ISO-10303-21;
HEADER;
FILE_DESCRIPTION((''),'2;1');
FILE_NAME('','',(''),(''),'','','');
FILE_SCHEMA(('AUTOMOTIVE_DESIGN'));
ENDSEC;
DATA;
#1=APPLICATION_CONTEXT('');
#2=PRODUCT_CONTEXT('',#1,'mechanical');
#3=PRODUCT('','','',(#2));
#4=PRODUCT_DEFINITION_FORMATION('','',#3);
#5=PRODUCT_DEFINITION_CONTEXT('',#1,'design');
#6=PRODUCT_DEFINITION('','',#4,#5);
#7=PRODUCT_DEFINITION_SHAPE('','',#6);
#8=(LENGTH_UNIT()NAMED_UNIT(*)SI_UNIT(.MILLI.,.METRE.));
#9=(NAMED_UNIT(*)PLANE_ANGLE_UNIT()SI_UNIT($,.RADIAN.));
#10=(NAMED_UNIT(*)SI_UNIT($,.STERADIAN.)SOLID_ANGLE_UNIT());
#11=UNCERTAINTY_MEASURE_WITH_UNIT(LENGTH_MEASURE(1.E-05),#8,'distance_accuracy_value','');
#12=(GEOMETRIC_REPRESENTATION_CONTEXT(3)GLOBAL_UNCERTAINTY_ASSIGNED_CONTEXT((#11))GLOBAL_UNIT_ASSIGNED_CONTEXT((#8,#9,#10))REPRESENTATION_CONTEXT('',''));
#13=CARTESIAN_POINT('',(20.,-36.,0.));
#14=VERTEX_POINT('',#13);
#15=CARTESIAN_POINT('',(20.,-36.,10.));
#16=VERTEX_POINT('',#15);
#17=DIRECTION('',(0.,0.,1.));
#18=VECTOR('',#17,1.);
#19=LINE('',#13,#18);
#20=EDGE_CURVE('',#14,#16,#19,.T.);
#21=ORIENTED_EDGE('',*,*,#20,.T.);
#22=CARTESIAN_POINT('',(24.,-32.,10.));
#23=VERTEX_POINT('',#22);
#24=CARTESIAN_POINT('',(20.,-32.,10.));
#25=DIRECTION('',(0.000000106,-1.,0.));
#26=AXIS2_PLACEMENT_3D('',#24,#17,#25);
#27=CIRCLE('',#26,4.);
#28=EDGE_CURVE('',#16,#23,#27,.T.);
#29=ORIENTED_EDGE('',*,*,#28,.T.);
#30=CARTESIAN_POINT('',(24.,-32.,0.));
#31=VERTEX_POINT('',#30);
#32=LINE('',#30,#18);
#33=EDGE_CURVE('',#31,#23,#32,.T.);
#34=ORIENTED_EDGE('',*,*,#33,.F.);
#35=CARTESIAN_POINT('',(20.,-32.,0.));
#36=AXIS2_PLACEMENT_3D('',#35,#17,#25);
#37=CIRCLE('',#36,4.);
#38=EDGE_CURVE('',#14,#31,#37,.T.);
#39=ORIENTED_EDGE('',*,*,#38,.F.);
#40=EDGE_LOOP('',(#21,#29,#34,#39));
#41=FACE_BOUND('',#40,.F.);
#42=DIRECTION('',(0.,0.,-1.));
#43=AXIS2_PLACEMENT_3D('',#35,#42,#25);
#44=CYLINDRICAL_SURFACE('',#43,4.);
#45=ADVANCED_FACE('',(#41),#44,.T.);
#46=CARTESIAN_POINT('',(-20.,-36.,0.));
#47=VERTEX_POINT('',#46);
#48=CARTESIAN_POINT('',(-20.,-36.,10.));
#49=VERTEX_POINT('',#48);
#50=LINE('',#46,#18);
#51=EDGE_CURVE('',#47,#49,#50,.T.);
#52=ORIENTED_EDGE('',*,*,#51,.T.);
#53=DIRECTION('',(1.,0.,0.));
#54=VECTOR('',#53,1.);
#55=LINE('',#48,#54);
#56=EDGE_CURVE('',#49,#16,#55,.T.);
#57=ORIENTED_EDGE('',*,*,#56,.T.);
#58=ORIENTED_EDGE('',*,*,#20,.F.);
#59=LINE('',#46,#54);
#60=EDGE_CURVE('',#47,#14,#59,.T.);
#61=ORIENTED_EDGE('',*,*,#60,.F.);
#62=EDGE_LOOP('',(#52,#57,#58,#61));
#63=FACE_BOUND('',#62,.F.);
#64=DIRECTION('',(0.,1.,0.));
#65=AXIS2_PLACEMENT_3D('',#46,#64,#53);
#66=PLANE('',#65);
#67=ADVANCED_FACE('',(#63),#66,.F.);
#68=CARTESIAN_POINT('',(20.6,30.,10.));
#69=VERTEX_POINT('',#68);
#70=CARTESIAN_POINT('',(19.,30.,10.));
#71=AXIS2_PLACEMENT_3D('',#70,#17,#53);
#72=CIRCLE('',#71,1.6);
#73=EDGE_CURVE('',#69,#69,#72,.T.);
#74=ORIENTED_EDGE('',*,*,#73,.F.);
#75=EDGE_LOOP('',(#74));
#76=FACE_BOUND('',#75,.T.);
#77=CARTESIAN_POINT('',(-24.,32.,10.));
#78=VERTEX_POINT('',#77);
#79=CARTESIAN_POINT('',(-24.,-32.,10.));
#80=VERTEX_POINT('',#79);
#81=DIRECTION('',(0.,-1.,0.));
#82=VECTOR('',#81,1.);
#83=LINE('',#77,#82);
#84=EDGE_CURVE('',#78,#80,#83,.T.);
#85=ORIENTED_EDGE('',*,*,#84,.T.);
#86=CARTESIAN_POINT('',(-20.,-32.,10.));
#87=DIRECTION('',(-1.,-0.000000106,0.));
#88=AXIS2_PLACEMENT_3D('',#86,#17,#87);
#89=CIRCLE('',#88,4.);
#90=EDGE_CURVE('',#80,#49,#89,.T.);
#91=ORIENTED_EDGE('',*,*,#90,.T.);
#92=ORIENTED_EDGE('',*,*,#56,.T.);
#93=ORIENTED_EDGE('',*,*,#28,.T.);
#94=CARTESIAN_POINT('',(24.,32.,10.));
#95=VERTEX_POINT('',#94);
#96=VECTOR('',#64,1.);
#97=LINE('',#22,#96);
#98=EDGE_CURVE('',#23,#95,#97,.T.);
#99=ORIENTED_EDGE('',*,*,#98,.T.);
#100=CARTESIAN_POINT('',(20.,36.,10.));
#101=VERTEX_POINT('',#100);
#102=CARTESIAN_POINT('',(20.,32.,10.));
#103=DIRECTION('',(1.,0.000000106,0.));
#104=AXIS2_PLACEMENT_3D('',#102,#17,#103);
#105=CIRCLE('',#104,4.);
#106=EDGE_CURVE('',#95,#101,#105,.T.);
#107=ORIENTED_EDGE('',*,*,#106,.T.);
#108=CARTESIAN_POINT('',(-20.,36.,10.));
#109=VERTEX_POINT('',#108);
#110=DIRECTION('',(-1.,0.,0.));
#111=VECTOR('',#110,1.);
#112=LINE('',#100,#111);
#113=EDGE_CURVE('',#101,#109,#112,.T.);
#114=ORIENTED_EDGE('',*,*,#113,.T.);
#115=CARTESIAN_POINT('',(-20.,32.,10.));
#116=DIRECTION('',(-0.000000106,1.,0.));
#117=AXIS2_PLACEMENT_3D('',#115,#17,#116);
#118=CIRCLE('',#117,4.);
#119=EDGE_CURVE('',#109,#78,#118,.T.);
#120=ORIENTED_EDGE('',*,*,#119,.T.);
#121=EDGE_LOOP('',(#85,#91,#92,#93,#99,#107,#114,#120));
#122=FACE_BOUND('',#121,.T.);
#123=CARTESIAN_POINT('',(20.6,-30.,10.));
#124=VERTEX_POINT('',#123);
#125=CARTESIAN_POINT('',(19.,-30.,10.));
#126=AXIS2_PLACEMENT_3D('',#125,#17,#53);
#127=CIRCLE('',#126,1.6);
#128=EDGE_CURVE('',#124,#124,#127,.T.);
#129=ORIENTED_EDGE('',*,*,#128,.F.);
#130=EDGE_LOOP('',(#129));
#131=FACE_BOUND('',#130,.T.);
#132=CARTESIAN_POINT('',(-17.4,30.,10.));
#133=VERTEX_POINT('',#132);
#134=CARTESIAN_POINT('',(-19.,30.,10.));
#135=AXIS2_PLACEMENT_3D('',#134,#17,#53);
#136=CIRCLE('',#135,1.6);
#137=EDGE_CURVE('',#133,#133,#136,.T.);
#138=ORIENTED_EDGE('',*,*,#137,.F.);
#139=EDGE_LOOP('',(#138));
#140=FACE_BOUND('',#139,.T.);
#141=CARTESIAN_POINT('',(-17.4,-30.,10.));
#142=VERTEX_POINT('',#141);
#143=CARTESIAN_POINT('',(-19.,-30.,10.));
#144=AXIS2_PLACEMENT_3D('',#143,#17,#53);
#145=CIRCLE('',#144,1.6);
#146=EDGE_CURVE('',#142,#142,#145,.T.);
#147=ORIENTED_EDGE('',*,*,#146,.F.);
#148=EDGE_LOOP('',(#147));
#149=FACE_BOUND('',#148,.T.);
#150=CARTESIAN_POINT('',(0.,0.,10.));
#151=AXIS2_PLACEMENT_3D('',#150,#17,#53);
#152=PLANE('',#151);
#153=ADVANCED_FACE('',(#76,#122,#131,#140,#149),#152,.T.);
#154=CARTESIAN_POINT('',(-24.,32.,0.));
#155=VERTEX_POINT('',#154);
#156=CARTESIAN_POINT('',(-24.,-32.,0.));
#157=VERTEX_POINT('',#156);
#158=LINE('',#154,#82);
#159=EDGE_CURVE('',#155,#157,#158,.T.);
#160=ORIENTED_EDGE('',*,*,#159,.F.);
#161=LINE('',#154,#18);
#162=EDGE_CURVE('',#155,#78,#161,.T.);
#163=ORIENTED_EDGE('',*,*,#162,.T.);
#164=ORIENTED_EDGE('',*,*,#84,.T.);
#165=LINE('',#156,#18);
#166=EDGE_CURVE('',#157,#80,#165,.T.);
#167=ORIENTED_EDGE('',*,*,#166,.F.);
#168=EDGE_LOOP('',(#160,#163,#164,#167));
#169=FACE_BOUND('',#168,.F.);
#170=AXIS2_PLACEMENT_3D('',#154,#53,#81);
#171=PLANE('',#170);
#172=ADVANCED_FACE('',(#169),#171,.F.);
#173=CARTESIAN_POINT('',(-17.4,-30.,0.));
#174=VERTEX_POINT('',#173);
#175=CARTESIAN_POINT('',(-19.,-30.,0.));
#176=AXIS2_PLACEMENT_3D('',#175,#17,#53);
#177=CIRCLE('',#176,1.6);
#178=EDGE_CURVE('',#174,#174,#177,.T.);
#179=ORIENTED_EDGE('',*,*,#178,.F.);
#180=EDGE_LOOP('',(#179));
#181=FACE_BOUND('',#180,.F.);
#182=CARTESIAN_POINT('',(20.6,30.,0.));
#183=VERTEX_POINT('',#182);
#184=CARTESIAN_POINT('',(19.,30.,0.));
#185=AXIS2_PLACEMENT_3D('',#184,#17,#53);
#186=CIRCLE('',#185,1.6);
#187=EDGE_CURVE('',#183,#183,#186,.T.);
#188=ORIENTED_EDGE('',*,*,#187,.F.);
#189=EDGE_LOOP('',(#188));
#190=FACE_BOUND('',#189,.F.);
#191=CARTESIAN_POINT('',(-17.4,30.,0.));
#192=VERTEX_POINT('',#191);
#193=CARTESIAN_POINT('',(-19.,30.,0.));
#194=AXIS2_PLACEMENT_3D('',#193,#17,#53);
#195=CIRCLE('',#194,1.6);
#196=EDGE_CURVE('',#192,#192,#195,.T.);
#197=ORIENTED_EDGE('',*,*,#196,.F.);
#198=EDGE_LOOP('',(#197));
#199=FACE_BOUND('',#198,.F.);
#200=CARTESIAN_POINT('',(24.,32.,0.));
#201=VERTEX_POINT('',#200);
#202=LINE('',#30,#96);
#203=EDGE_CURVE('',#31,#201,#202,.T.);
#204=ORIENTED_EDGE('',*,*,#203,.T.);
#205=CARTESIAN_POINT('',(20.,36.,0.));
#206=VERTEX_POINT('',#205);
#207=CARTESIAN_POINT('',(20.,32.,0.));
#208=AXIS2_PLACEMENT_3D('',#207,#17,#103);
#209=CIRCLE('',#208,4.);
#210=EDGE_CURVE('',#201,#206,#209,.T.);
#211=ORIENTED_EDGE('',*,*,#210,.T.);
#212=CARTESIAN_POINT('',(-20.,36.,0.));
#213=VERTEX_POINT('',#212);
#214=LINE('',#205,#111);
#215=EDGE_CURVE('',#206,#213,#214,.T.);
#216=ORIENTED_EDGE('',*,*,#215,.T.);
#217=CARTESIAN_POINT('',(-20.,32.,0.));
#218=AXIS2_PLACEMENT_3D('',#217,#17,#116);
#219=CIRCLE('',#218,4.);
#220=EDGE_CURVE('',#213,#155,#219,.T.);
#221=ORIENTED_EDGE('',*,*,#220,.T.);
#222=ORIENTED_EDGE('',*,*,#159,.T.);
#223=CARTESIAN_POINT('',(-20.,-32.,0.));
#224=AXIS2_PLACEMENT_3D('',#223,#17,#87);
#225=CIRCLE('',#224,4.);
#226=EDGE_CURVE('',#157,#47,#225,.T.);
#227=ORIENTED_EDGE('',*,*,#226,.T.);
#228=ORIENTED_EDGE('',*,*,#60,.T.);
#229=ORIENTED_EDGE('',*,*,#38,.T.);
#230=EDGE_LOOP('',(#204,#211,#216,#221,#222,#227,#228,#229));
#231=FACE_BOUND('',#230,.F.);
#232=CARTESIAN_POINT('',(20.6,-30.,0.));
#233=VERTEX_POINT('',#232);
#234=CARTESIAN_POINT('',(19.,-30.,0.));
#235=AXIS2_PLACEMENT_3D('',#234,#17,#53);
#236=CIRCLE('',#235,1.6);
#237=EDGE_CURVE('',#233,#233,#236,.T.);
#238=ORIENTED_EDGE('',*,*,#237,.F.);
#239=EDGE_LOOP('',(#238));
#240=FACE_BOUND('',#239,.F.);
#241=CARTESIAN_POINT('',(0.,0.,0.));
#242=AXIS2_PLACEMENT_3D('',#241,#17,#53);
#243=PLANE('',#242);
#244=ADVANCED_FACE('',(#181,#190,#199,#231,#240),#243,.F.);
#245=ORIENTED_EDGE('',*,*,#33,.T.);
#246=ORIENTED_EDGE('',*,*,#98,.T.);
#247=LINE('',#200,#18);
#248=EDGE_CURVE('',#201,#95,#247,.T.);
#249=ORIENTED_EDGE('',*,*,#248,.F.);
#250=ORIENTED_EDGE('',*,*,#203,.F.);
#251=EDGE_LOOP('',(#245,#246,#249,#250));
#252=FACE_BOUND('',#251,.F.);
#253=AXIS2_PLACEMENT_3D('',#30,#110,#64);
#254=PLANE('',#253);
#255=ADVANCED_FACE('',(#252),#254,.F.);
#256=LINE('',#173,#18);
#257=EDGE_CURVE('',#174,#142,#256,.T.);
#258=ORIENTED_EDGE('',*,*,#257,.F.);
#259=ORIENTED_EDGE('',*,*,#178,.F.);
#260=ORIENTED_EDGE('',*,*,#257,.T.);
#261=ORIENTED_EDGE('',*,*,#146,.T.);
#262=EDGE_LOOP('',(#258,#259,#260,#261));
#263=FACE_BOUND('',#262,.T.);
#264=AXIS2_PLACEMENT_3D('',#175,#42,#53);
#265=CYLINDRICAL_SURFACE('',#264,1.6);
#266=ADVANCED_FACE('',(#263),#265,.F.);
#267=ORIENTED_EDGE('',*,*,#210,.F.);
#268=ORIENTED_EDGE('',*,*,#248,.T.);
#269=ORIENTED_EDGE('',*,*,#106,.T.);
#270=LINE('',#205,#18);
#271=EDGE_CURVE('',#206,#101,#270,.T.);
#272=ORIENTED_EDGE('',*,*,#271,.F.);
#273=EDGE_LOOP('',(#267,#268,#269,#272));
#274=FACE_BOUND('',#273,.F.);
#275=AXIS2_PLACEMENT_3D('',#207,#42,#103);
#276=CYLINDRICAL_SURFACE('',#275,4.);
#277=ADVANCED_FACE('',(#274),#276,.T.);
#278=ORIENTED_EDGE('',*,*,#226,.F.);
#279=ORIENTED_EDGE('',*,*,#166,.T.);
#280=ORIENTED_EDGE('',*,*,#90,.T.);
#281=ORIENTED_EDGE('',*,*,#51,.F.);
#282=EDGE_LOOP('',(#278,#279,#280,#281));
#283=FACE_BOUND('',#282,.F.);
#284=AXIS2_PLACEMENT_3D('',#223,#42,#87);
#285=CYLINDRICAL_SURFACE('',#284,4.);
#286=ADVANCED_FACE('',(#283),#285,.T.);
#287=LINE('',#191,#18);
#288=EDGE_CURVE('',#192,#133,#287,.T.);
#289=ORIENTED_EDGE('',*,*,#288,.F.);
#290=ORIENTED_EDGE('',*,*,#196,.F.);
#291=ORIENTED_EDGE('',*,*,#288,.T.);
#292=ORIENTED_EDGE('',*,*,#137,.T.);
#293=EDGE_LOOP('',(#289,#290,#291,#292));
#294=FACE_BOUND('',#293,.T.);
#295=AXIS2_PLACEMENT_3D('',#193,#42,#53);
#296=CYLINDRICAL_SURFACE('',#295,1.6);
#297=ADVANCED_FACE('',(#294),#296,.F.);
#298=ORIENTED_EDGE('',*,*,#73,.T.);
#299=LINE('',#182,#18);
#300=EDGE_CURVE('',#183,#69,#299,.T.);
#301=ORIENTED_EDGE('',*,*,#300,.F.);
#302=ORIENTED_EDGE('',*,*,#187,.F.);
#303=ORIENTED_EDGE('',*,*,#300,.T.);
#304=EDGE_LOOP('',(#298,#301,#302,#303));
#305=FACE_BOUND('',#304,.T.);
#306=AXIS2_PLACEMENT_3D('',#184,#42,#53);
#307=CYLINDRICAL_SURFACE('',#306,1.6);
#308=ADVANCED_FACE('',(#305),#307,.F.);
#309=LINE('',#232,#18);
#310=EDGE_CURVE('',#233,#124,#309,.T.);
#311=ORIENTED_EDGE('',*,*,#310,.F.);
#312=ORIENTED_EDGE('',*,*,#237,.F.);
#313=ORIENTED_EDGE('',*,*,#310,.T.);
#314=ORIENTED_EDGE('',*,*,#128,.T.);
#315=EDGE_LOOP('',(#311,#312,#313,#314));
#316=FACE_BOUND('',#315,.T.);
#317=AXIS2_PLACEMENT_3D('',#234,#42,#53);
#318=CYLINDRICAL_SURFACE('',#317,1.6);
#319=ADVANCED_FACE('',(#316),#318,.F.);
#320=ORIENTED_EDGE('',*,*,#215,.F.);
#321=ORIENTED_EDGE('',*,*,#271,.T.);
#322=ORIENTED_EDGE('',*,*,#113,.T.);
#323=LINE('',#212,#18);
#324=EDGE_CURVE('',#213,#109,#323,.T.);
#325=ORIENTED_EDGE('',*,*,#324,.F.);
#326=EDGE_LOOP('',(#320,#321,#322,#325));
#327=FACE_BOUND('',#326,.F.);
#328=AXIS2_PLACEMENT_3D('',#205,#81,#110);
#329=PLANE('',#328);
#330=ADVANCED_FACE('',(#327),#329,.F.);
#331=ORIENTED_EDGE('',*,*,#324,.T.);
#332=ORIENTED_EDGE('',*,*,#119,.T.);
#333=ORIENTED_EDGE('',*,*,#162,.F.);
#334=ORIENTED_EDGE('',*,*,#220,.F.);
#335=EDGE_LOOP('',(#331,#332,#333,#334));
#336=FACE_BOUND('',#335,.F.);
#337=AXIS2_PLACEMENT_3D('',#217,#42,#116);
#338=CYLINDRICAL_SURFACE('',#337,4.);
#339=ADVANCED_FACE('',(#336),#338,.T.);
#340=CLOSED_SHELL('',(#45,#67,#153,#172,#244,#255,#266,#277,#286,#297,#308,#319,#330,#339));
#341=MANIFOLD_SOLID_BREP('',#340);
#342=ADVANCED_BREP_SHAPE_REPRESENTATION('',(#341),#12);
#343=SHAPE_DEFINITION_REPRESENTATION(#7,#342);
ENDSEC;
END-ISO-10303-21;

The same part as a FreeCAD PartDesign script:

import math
import FreeCAD as App
import Part
import Sketcher
from FreeCAD import Vector

doc = App.newDocument("Part")
body = doc.addObject("PartDesign::Body", "Body")

# Sketch on XY plane
sketch1 = body.newObject("Sketcher::SketchObject", "Sketch")
sketch1.AttachmentSupport = (doc.getObject("XY_Plane"), [""])
sketch1.MapMode = "FlatFace"
sketch1.addGeometry(Part.LineSegment(Vector(20, 36, 0), Vector(-20, 36, 0)), False)
sketch1.addGeometry(Part.ArcOfCircle(Part.Circle(Vector(-20, 32, 0), Vector(0, 0, 1), 4), math.radians(90), math.radians(180)), False)
sketch1.addGeometry(Part.LineSegment(Vector(-24, 32, 0), Vector(-24, -32, 0)), False)
sketch1.addGeometry(Part.ArcOfCircle(Part.Circle(Vector(-20, -32, 0), Vector(0, 0, 1), 4), math.radians(-180), math.radians(-90)), False)
sketch1.addGeometry(Part.LineSegment(Vector(-20, -36, 0), Vector(20, -36, 0)), False)
sketch1.addGeometry(Part.ArcOfCircle(Part.Circle(Vector(20, -32, 0), Vector(0, 0, 1), 4), math.radians(-90), math.radians(0)), False)
sketch1.addGeometry(Part.LineSegment(Vector(24, -32, 0), Vector(24, 32, 0)), False)
sketch1.addGeometry(Part.ArcOfCircle(Part.Circle(Vector(20, 32, 0), Vector(0, 0, 1), 4), math.radians(0), math.radians(90)), False)
sketch1.addGeometry(Part.Circle(Vector(-19, -30, 0), Vector(0, 0, 1), 1.6), False)
sketch1.addGeometry(Part.Circle(Vector(19, -30, 0), Vector(0, 0, 1), 1.6), False)
sketch1.addGeometry(Part.Circle(Vector(-19, 30, 0), Vector(0, 0, 1), 1.6), False)
sketch1.addGeometry(Part.Circle(Vector(19, 30, 0), Vector(0, 0, 1), 1.6), False)
sketch1.addConstraint(Sketcher.Constraint("Tangent", 0, 2, 1, 1))
sketch1.addConstraint(Sketcher.Constraint("Tangent", 1, 2, 2, 1))
sketch1.addConstraint(Sketcher.Constraint("Tangent", 2, 2, 3, 1))
sketch1.addConstraint(Sketcher.Constraint("Tangent", 3, 2, 4, 1))
sketch1.addConstraint(Sketcher.Constraint("Tangent", 4, 2, 5, 1))
sketch1.addConstraint(Sketcher.Constraint("Tangent", 5, 2, 6, 1))
sketch1.addConstraint(Sketcher.Constraint("Tangent", 6, 2, 7, 1))
sketch1.addConstraint(Sketcher.Constraint("Tangent", 7, 2, 0, 1))
sketch1.addConstraint(Sketcher.Constraint("Horizontal", 0))
sketch1.addConstraint(Sketcher.Constraint("Vertical", 2))
sketch1.addConstraint(Sketcher.Constraint("Horizontal", 4))
sketch1.addConstraint(Sketcher.Constraint("Vertical", 6))
sketch1.addConstraint(Sketcher.Constraint("Equal", 1, 3))
sketch1.addConstraint(Sketcher.Constraint("Equal", 3, 5))
sketch1.addConstraint(Sketcher.Constraint("Equal", 5, 7))
sketch1.addConstraint(Sketcher.Constraint("Equal", 8, 9))
sketch1.addConstraint(Sketcher.Constraint("Equal", 9, 10))
sketch1.addConstraint(Sketcher.Constraint("Equal", 10, 11))
sketch1.addConstraint(Sketcher.Constraint("Symmetric", 1, 3, 5, 3, -1, 1))
sketch1.addConstraint(Sketcher.Constraint("Symmetric", 9, 3, 10, 3, -1, 1))
sketch1.addConstraint(Sketcher.Constraint("Symmetric", 8, 3, 11, 3, -1, 1))
sketch1.addConstraint(Sketcher.Constraint("Symmetric", 8, 3, 9, 3, -2))
sketch1.addConstraint(Sketcher.Constraint("Radius", 1, 4.0))
sketch1.addConstraint(Sketcher.Constraint("Diameter", 8, 3.2))
sketch1.addConstraint(Sketcher.Constraint("DistanceX", 0, 2, 0, 1, 40.0))
sketch1.addConstraint(Sketcher.Constraint("DistanceY", 2, 2, 2, 1, 64.0))
sketch1.addConstraint(Sketcher.Constraint("DistanceX", 8, 3, -1, 1, 19.0))
sketch1.addConstraint(Sketcher.Constraint("DistanceY", 8, 3, -1, 1, 30.0))
pad1 = body.newObject("PartDesign::Pad", "Pad")
pad1.Profile = sketch1
pad1.Length = 10

doc.recompute()
